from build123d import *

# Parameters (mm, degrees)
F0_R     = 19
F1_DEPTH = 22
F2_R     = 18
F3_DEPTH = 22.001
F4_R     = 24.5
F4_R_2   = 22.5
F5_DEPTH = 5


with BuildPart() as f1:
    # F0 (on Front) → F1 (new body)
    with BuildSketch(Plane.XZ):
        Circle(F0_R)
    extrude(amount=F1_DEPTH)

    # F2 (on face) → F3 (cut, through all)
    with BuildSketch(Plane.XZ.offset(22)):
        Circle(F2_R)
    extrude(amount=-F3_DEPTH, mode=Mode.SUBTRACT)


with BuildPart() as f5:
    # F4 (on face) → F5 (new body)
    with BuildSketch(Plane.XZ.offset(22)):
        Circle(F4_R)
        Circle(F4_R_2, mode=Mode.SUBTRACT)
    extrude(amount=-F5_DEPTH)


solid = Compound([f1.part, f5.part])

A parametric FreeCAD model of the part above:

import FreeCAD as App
import Part
import Sketcher

V = App.Vector

doc = App.newDocument("Part")
params = doc.addObject("Spreadsheet::Sheet", "Params")
for row, (alias, value) in enumerate([
    ("sketch1_diameter", "38 mm"),
    ("pad1_length", "22 mm"),
    ("sketch2_diameter", "36 mm"),
    ("sketch3_diameter", "49 mm"),
    ("sketch3_diameter2", "45 mm"),
    ("pad2_length", "5 mm"),
], start=1):
    params.set(f"A{row}", alias)
    params.set(f"B{row}", "=" + value)
    params.setAlias(f"B{row}", alias)

body = doc.addObject("PartDesign::Body", "Body")

sketch1 = body.newObject("Sketcher::SketchObject", "Sketch")
sketch1.AttachmentSupport = (doc.getObject("XZ_Plane"), [""])
sketch1.MapMode = "FlatFace"
sketch1.addGeometry(Part.Circle(V(0, 0, 0), V(0, 0, 1), 19), False)
sketch1.addConstraint(Sketcher.Constraint("Coincident", 0, 3, -1, 1))
sketch1.addConstraint(Sketcher.Constraint("Diameter", 0, 38.0))
sketch1.setExpression("Constraints[1]", "Params.sketch1_diameter")
pad1 = body.newObject("PartDesign::Pad", "Pad")
pad1.Profile = sketch1
pad1.setExpression("Length", "Params.pad1_length")

sketch2 = body.newObject("Sketcher::SketchObject", "Sketch001")
sketch2.AttachmentSupport = (doc.getObject("XZ_Plane"), [""])
sketch2.MapMode = "FlatFace"
sketch2.AttachmentOffset = App.Placement(V(0, 0, 22), App.Rotation())
sketch2.addGeometry(Part.Circle(V(0, 0, 0), V(0, 0, 1), 18), False)
sketch2.addConstraint(Sketcher.Constraint("Coincident", 0, 3, -1, 1))
sketch2.addConstraint(Sketcher.Constraint("Diameter", 0, 36.0))
sketch2.setExpression("Constraints[1]", "Params.sketch2_diameter")
pocket1 = body.newObject("PartDesign::Pocket", "Pocket")
pocket1.Profile = sketch2
pocket1.Type = "ThroughAll"
body2 = doc.addObject("PartDesign::Body", "Body001")

sketch3 = body2.newObject("Sketcher::SketchObject", "Sketch002")
sketch3.AttachmentSupport = (doc.getObject("XZ_Plane001"), [""])
sketch3.MapMode = "FlatFace"
sketch3.AttachmentOffset = App.Placement(V(0, 0, 22), App.Rotation())
sketch3.addGeometry(Part.Circle(V(0, 0, 0), V(0, 0, 1), 24), False)
sketch3.addGeometry(Part.Circle(V(0, 0, 0), V(0, 0, 1), 22), False)
sketch3.addConstraint(Sketcher.Constraint("Coincident", 0, 3, -1, 1))
sketch3.addConstraint(Sketcher.Constraint("Coincident", 1, 3, -1, 1))
sketch3.addConstraint(Sketcher.Constraint("Diameter", 0, 49.0))
sketch3.addConstraint(Sketcher.Constraint("Diameter", 1, 45.0))
sketch3.setExpression("Constraints[2]", "Params.sketch3_diameter")
sketch3.setExpression("Constraints[3]", "Params.sketch3_diameter2")
pad2 = body2.newObject("PartDesign::Pad", "Pad001")
pad2.Profile = sketch3
pad2.setExpression("Length", "Params.pad2_length")
pad2.Reversed = True

doc.recompute()
